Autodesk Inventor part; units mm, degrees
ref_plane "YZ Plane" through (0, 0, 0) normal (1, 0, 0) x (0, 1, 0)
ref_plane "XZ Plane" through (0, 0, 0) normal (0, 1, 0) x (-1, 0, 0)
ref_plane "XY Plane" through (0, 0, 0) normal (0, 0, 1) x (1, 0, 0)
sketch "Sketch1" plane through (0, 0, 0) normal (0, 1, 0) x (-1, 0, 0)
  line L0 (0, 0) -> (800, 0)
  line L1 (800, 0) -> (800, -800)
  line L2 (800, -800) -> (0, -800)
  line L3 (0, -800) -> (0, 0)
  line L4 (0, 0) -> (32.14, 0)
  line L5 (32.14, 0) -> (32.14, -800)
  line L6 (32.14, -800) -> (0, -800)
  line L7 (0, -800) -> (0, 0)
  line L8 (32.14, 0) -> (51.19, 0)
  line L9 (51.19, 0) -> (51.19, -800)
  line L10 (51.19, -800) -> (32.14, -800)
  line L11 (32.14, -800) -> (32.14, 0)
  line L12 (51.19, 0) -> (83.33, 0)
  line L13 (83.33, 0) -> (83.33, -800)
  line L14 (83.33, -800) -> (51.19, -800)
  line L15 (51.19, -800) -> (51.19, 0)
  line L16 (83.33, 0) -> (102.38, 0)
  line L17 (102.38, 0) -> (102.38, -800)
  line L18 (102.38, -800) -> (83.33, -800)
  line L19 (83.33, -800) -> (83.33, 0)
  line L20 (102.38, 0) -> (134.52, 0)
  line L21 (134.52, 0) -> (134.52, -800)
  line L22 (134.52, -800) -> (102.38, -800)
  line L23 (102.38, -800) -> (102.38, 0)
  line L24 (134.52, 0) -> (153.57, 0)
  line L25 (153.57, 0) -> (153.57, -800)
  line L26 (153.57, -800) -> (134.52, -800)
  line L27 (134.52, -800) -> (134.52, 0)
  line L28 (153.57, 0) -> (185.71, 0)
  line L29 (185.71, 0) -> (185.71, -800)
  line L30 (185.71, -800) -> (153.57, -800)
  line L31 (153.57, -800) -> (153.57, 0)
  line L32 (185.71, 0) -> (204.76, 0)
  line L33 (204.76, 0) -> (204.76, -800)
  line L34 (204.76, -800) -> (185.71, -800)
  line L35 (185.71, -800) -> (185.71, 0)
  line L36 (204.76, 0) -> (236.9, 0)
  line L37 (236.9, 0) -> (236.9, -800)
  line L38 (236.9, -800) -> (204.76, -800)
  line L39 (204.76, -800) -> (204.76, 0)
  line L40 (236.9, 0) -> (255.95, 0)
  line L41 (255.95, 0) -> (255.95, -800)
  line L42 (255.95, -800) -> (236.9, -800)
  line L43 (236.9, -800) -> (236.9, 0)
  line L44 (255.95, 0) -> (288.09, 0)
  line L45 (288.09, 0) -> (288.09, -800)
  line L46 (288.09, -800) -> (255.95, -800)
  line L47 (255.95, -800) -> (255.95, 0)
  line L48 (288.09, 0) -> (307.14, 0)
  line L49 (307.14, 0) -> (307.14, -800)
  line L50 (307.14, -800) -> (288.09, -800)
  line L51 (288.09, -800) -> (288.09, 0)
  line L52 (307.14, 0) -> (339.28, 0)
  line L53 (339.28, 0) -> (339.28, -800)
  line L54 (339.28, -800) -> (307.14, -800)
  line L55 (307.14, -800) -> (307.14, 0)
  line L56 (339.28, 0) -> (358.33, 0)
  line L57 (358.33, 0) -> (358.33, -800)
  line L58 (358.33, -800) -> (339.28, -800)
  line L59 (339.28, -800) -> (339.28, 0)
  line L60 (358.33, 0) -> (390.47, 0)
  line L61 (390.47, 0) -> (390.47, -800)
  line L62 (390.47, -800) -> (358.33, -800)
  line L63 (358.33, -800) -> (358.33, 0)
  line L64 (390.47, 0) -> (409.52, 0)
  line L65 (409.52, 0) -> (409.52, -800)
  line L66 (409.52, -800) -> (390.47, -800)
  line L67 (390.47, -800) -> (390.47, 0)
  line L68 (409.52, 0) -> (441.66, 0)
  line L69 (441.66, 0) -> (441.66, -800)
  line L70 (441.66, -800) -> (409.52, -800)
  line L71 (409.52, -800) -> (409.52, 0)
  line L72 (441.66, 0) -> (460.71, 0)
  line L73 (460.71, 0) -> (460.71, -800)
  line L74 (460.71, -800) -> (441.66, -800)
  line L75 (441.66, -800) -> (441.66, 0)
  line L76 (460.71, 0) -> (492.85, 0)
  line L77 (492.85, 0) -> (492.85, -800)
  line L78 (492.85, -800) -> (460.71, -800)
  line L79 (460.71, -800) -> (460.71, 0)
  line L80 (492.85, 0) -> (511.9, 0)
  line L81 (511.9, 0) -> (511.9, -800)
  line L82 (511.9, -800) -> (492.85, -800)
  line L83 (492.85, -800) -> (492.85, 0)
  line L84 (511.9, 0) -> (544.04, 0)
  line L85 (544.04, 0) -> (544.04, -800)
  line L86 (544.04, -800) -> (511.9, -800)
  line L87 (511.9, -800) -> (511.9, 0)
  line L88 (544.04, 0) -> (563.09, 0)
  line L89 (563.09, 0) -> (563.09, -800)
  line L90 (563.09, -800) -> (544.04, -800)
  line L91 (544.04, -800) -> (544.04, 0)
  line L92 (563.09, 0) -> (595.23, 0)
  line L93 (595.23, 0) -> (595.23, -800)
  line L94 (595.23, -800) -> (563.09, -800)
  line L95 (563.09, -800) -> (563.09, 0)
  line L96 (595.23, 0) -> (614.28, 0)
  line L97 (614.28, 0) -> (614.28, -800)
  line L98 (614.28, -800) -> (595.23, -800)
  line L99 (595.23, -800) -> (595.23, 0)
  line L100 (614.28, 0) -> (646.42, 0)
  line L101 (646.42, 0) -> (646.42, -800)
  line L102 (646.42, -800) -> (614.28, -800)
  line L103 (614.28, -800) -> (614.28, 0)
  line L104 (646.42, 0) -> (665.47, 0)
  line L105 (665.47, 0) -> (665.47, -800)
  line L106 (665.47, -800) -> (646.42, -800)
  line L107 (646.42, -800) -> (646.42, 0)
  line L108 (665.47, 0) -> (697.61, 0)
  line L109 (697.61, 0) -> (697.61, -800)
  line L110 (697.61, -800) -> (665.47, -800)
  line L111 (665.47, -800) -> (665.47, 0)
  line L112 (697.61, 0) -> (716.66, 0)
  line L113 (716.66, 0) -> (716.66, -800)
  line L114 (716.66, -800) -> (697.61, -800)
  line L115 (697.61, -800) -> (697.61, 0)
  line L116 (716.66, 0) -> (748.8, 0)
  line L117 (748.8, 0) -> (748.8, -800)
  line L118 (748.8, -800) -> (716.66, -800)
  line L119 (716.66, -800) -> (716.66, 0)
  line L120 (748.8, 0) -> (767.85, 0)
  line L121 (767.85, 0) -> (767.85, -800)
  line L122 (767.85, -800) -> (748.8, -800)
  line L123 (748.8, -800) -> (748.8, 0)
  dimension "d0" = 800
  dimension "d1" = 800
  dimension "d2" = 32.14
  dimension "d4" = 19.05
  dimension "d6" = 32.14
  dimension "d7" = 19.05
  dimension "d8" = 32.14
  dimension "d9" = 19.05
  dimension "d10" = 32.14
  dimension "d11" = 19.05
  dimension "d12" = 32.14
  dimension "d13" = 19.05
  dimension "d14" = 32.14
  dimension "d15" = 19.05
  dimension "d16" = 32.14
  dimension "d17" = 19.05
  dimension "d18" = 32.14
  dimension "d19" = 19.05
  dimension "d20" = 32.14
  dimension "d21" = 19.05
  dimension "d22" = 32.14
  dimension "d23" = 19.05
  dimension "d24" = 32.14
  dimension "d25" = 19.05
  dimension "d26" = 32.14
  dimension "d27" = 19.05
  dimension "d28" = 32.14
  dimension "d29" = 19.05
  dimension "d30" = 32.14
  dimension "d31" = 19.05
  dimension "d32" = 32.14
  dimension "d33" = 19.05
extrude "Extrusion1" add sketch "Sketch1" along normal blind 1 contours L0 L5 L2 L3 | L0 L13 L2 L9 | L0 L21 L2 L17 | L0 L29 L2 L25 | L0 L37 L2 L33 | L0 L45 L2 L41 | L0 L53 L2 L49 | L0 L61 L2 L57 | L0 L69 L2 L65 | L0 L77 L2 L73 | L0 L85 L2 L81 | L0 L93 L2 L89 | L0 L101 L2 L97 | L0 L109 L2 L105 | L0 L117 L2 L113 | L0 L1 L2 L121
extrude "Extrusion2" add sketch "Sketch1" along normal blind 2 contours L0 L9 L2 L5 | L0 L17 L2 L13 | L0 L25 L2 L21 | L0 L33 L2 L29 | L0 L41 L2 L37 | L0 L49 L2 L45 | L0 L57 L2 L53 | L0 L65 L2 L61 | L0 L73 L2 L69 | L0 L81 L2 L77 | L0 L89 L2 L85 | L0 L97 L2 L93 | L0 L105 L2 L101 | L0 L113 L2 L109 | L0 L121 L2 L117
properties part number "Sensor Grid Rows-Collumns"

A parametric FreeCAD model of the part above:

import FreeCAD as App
import Part
import Sketcher

doc = App.newDocument("Part")
params = doc.addObject("Spreadsheet::Sheet", "Params")
for row, (alias, value) in enumerate([
    ("sketch1_height", "800 mm"),
    ("sketch1_width", "32.14 mm"),
    ("sketch1_width2", "32.15 mm"),
    ("pad1_length", "1 mm"),
    ("sketch2_height", "800 mm"),
    ("sketch2_width", "19.05 mm"),
    ("pad2_length", "2 mm"),
], start=1):
    params.set(f"A{row}", alias)
    params.set(f"B{row}", "=" + value)
    params.setAlias(f"B{row}", alias)

body = doc.addObject("PartDesign::Body", "Body")
body.AllowCompound = True

sketch1 = body.newObject("Sketcher::SketchObject", "Sketch")
sketch1.AttachmentSupport = (doc.getObject("XZ_Plane"), [""])
sketch1.MapMode = "FlatFace"
sketch1.addGeometry([
    Part.LineSegment(App.Vector(-32, 0, 0), App.Vector(0, 0, 0)),
    Part.LineSegment(App.Vector(0, 0, 0), App.Vector(0, -800, 0)),
    Part.LineSegment(App.Vector(0, -800, 0), App.Vector(-32, -800, 0)),
    Part.LineSegment(App.Vector(-32, -800, 0), App.Vector(-32, 0, 0)),
    Part.LineSegment(App.Vector(-83, 0, 0), App.Vector(-51, 0, 0)),
    Part.LineSegment(App.Vector(-51, 0, 0), App.Vector(-51, -800, 0)),
    Part.LineSegment(App.Vector(-51, -800, 0), App.Vector(-83, -800, 0)),
    Part.LineSegment(App.Vector(-83, -800, 0), App.Vector(-83, 0, 0)),
    Part.LineSegment(App.Vector(-135, 0, 0), App.Vector(-102, 0, 0)),
    Part.LineSegment(App.Vector(-102, 0, 0), App.Vector(-102, -800, 0)),
    Part.LineSegment(App.Vector(-102, -800, 0), App.Vector(-135, -800, 0)),
    Part.LineSegment(App.Vector(-135, -800, 0), App.Vector(-135, 0, 0)),
    Part.LineSegment(App.Vector(-186, 0, 0), App.Vector(-154, 0, 0)),
    Part.LineSegment(App.Vector(-154, 0, 0), App.Vector(-154, -800, 0)),
    Part.LineSegment(App.Vector(-154, -800, 0), App.Vector(-186, -800, 0)),
    Part.LineSegment(App.Vector(-186, -800, 0), App.Vector(-186, 0, 0)),
    Part.LineSegment(App.Vector(-237, 0, 0), App.Vector(-205, 0, 0)),
    Part.LineSegment(App.Vector(-205, 0, 0), App.Vector(-205, -800, 0)),
    Part.LineSegment(App.Vector(-205, -800, 0), App.Vector(-237, -800, 0)),
    Part.LineSegment(App.Vector(-237, -800, 0), App.Vector(-237, 0, 0)),
    Part.LineSegment(App.Vector(-288, 0, 0), App.Vector(-256, 0, 0)),
    Part.LineSegment(App.Vector(-256, 0, 0), App.Vector(-256, -800, 0)),
    Part.LineSegment(App.Vector(-256, -800, 0), App.Vector(-288, -800, 0)),
    Part.LineSegment(App.Vector(-288, -800, 0), App.Vector(-288, 0, 0)),
    Part.LineSegment(App.Vector(-339, 0, 0), App.Vector(-307, 0, 0)),
    Part.LineSegment(App.Vector(-307, 0, 0), App.Vector(-307, -800, 0)),
    Part.LineSegment(App.Vector(-307, -800, 0), App.Vector(-339, -800, 0)),
    Part.LineSegment(App.Vector(-339, -800, 0), App.Vector(-339, 0, 0)),
    Part.LineSegment(App.Vector(-390, 0, 0), App.Vector(-358, 0, 0)),
    Part.LineSegment(App.Vector(-358, 0, 0), App.Vector(-358, -800, 0)),
    Part.LineSegment(App.Vector(-358, -800, 0), App.Vector(-390, -800, 0)),
    Part.LineSegment(App.Vector(-390, -800, 0), App.Vector(-390, 0, 0)),
    Part.LineSegment(App.Vector(-442, 0, 0), App.Vector(-410, 0, 0)),
    Part.LineSegment(App.Vector(-410, 0, 0), App.Vector(-410, -800, 0)),
    Part.LineSegment(App.Vector(-410, -800, 0), App.Vector(-442, -800, 0)),
    Part.LineSegment(App.Vector(-442, -800, 0), App.Vector(-442, 0, 0)),
    Part.LineSegment(App.Vector(-493, 0, 0), App.Vector(-461, 0, 0)),
    Part.LineSegment(App.Vector(-461, 0, 0), App.Vector(-461, -800, 0)),
    Part.LineSegment(App.Vector(-461, -800, 0), App.Vector(-493, -800, 0)),
    Part.LineSegment(App.Vector(-493, -800, 0), App.Vector(-493, 0, 0)),
    Part.LineSegment(App.Vector(-544, 0, 0), App.Vector(-512, 0, 0)),
    Part.LineSegment(App.Vector(-512, 0, 0), App.Vector(-512, -800, 0)),
    Part.LineSegment(App.Vector(-512, -800, 0), App.Vector(-544, -800, 0)),
    Part.LineSegment(App.Vector(-544, -800, 0), App.Vector(-544, 0, 0)),
    Part.LineSegment(App.Vector(-595, 0, 0), App.Vector(-563, 0, 0)),
    Part.LineSegment(App.Vector(-563, 0, 0), App.Vector(-563, -800, 0)),
    Part.LineSegment(App.Vector(-563, -800, 0), App.Vector(-595, -800, 0)),
    Part.LineSegment(App.Vector(-595, -800, 0), App.Vector(-595, 0, 0)),
    Part.LineSegment(App.Vector(-646, 0, 0), App.Vector(-614, 0, 0)),
    Part.LineSegment(App.Vector(-614, 0, 0), App.Vector(-614, -800, 0)),
    Part.LineSegment(App.Vector(-614, -800, 0), App.Vector(-646, -800, 0)),
    Part.LineSegment(App.Vector(-646, -800, 0), App.Vector(-646, 0, 0)),
    Part.LineSegment(App.Vector(-698, 0, 0), App.Vector(-665, 0, 0)),
    Part.LineSegment(App.Vector(-665, 0, 0), App.Vector(-665, -800, 0)),
    Part.LineSegment(App.Vector(-665, -800, 0), App.Vector(-698, -800, 0)),
    Part.LineSegment(App.Vector(-698, -800, 0), App.Vector(-698, 0, 0)),
    Part.LineSegment(App.Vector(-749, 0, 0), App.Vector(-717, 0, 0)),
    Part.LineSegment(App.Vector(-717, 0, 0), App.Vector(-717, -800, 0)),
    Part.LineSegment(App.Vector(-717, -800, 0), App.Vector(-749, -800, 0)),
    Part.LineSegment(App.Vector(-749, -800, 0), App.Vector(-749, 0, 0)),
    Part.LineSegment(App.Vector(-800, 0, 0), App.Vector(-768, 0, 0)),
    Part.LineSegment(App.Vector(-768, 0, 0), App.Vector(-768, -800, 0)),
    Part.LineSegment(App.Vector(-768, -800, 0), App.Vector(-800, -800, 0)),
    Part.LineSegment(App.Vector(-800, -800, 0), App.Vector(-800, 0, 0)),
], False)
sketch1.addConstraint([
    Sketcher.Constraint("Coincident", 0, 2, 1, 1),
    Sketcher.Constraint("Coincident", 1, 2, 2, 1),
    Sketcher.Constraint("Coincident", 2, 2, 3, 1),
    Sketcher.Constraint("Coincident", 3, 2, 0, 1),
    Sketcher.Constraint("Coincident", 4, 2, 5, 1),
    Sketcher.Constraint("Coincident", 5, 2, 6, 1),
    Sketcher.Constraint("Coincident", 6, 2, 7, 1),
    Sketcher.Constraint("Coincident", 7, 2, 4, 1),
    Sketcher.Constraint("Coincident", 8, 2, 9, 1),
    Sketcher.Constraint("Coincident", 9, 2, 10, 1),
    Sketcher.Constraint("Coincident", 10, 2, 11, 1),
    Sketcher.Constraint("Coincident", 11, 2, 8, 1),
    Sketcher.Constraint("Coincident", 12, 2, 13, 1),
    Sketcher.Constraint("Coincident", 13, 2, 14, 1),
    Sketcher.Constraint("Coincident", 14, 2, 15, 1),
    Sketcher.Constraint("Coincident", 15, 2, 12, 1),
    Sketcher.Constraint("Coincident", 16, 2, 17, 1),
    Sketcher.Constraint("Coincident", 17, 2, 18, 1),
    Sketcher.Constraint("Coincident", 18, 2, 19, 1),
    Sketcher.Constraint("Coincident", 19, 2, 16, 1),
    Sketcher.Constraint("Coincident", 20, 2, 21, 1),
    Sketcher.Constraint("Coincident", 21, 2, 22, 1),
    Sketcher.Constraint("Coincident", 22, 2, 23, 1),
    Sketcher.Constraint("Coincident", 23, 2, 20, 1),
    Sketcher.Constraint("Coincident", 24, 2, 25, 1),
    Sketcher.Constraint("Coincident", 25, 2, 26, 1),
    Sketcher.Constraint("Coincident", 26, 2, 27, 1),
    Sketcher.Constraint("Coincident", 27, 2, 24, 1),
    Sketcher.Constraint("Coincident", 28, 2, 29, 1),
    Sketcher.Constraint("Coincident", 29, 2, 30, 1),
    Sketcher.Constraint("Coincident", 30, 2, 31, 1),
    Sketcher.Constraint("Coincident", 31, 2, 28, 1),
    Sketcher.Constraint("Coincident", 32, 2, 33, 1),
    Sketcher.Constraint("Coincident", 33, 2, 34, 1),
    Sketcher.Constraint("Coincident", 34, 2, 35, 1),
    Sketcher.Constraint("Coincident", 35, 2, 32, 1),
    Sketcher.Constraint("Coincident", 36, 2, 37, 1),
    Sketcher.Constraint("Coincident", 37, 2, 38, 1),
    Sketcher.Constraint("Coincident", 38, 2, 39, 1),
    Sketcher.Constraint("Coincident", 39, 2, 36, 1),
    Sketcher.Constraint("Coincident", 40, 2, 41, 1),
    Sketcher.Constraint("Coincident", 41, 2, 42, 1),
    Sketcher.Constraint("Coincident", 42, 2, 43, 1),
    Sketcher.Constraint("Coincident", 43, 2, 40, 1),
    Sketcher.Constraint("Coincident", 44, 2, 45, 1),
    Sketcher.Constraint("Coincident", 45, 2, 46, 1),
    Sketcher.Constraint("Coincident", 46, 2, 47, 1),
    Sketcher.Constraint("Coincident", 47, 2, 44, 1),
    Sketcher.Constraint("Coincident", 48, 2, 49, 1),
    Sketcher.Constraint("Coincident", 49, 2, 50, 1),
    Sketcher.Constraint("Coincident", 50, 2, 51, 1),
    Sketcher.Constraint("Coincident", 51, 2, 48, 1),
    Sketcher.Constraint("Coincident", 52, 2, 53, 1),
    Sketcher.Constraint("Coincident", 53, 2, 54, 1),
    Sketcher.Constraint("Coincident", 54, 2, 55, 1),
    Sketcher.Constraint("Coincident", 55, 2, 52, 1),
    Sketcher.Constraint("Coincident", 56, 2, 57, 1),
    Sketcher.Constraint("Coincident", 57, 2, 58, 1),
    Sketcher.Constraint("Coincident", 58, 2, 59, 1),
    Sketcher.Constraint("Coincident", 59, 2, 56, 1),
    Sketcher.Constraint("Coincident", 60, 2, 61, 1),
    Sketcher.Constraint("Coincident", 61, 2, 62, 1),
    Sketcher.Constraint("Coincident", 62, 2, 63, 1),
    Sketcher.Constraint("Coincident", 63, 2, 60, 1),
    Sketcher.Constraint("Horizontal", 0),
    Sketcher.Constraint("Vertical", 1),
    Sketcher.Constraint("Horizontal", 2),
    Sketcher.Constraint("Vertical", 3),
    Sketcher.Constraint("Horizontal", 4),
    Sketcher.Constraint("Vertical", 5),
    Sketcher.Constraint("Horizontal", 6),
    Sketcher.Constraint("Vertical", 7),
    Sketcher.Constraint("Horizontal", 8),
    Sketcher.Constraint("Vertical", 9),
    Sketcher.Constraint("Horizontal", 10),
    Sketcher.Constraint("Vertical", 11),
    Sketcher.Constraint("Horizontal", 12),
    Sketcher.Constraint("Vertical", 13),
    Sketcher.Constraint("Horizontal", 14),
    Sketcher.Constraint("Vertical", 15),
    Sketcher.Constraint("Horizontal", 16),
    Sketcher.Constraint("Vertical", 17),
    Sketcher.Constraint("Horizontal", 18),
    Sketcher.Constraint("Vertical", 19),
    Sketcher.Constraint("Horizontal", 20),
    Sketcher.Constraint("Vertical", 21),
    Sketcher.Constraint("Horizontal", 22),
    Sketcher.Constraint("Vertical", 23),
    Sketcher.Constraint("Horizontal", 24),
    Sketcher.Constraint("Vertical", 25),
    Sketcher.Constraint("Horizontal", 26),
    Sketcher.Constraint("Vertical", 27),
    Sketcher.Constraint("Horizontal", 28),
    Sketcher.Constraint("Vertical", 29),
    Sketcher.Constraint("Horizontal", 30),
    Sketcher.Constraint("Vertical", 31),
    Sketcher.Constraint("Horizontal", 32),
    Sketcher.Constraint("Vertical", 33),
    Sketcher.Constraint("Horizontal", 34),
    Sketcher.Constraint("Vertical", 35),
    Sketcher.Constraint("Horizontal", 36),
    Sketcher.Constraint("Vertical", 37),
    Sketcher.Constraint("Horizontal", 38),
    Sketcher.Constraint("Vertical", 39),
    Sketcher.Constraint("Horizontal", 40),
    Sketcher.Constraint("Vertical", 41),
    Sketcher.Constraint("Horizontal", 42),
    Sketcher.Constraint("Vertical", 43),
    Sketcher.Constraint("Horizontal", 44),
    Sketcher.Constraint("Vertical", 45),
    Sketcher.Constraint("Horizontal", 46),
    Sketcher.Constraint("Vertical", 47),
    Sketcher.Constraint("Horizontal", 48),
    Sketcher.Constraint("Vertical", 49),
    Sketcher.Constraint("Horizontal", 50),
    Sketcher.Constraint("Vertical", 51),
    Sketcher.Constraint("Horizontal", 52),
    Sketcher.Constraint("Vertical", 53),
    Sketcher.Constraint("Horizontal", 54),
    Sketcher.Constraint("Vertical", 55),
    Sketcher.Constraint("Horizontal", 56),
    Sketcher.Constraint("Vertical", 57),
    Sketcher.Constraint("Horizontal", 58),
    Sketcher.Constraint("Vertical", 59),
    Sketcher.Constraint("Horizontal", 60),
    Sketcher.Constraint("Vertical", 61),
    Sketcher.Constraint("Horizontal", 62),
    Sketcher.Constraint("Vertical", 63),
    Sketcher.Constraint("Coincident", 0, 2, -1, 1),
    Sketcher.Constraint("PointOnObject", 4, 2, -1),
    Sketcher.Constraint("PointOnObject", 8, 2, -1),
    Sketcher.Constraint("PointOnObject", 12, 2, -1),
    Sketcher.Constraint("PointOnObject", 16, 2, -1),
    Sketcher.Constraint("PointOnObject", 20, 2, -1),
    Sketcher.Constraint("PointOnObject", 24, 2, -1),
    Sketcher.Constraint("PointOnObject", 28, 2, -1),
    Sketcher.Constraint("PointOnObject", 32, 2, -1),
    Sketcher.Constraint("PointOnObject", 36, 2, -1),
    Sketcher.Constraint("PointOnObject", 40, 2, -1),
    Sketcher.Constraint("PointOnObject", 44, 2, -1),
    Sketcher.Constraint("PointOnObject", 48, 2, -1),
    Sketcher.Constraint("PointOnObject", 52, 2, -1),
    Sketcher.Constraint("PointOnObject", 56, 2, -1),
    Sketcher.Constraint("PointOnObject", 60, 2, -1),
    Sketcher.Constraint("Horizontal", 2, 2, 5, 2),
    Sketcher.Constraint("Horizontal", 6, 2, 9, 2),
    Sketcher.Constraint("Horizontal", 10, 2, 13, 2),
    Sketcher.Constraint("Horizontal", 14, 2, 17, 2),
    Sketcher.Constraint("Horizontal", 18, 2, 21, 2),
    Sketcher.Constraint("Horizontal", 22, 2, 25, 2),
    Sketcher.Constraint("Horizontal", 26, 2, 29, 2),
    Sketcher.Constraint("Horizontal", 30, 2, 33, 2),
    Sketcher.Constraint("Horizontal", 34, 2, 37, 2),
    Sketcher.Constraint("Horizontal", 38, 2, 41, 2),
    Sketcher.Constraint("Horizontal", 42, 2, 45, 2),
    Sketcher.Constraint("Horizontal", 46, 2, 49, 2),
    Sketcher.Constraint("Horizontal", 50, 2, 53, 2),
    Sketcher.Constraint("Horizontal", 54, 2, 57, 2),
    Sketcher.Constraint("Horizontal", 58, 2, 61, 2),
    Sketcher.Constraint("Equal", 2, 4),
    Sketcher.Constraint("Equal", 6, 8),
    Sketcher.Constraint("Equal", 10, 12),
    Sketcher.Constraint("Equal", 14, 16),
    Sketcher.Constraint("Equal", 18, 20),
    Sketcher.Constraint("Equal", 22, 24),
    Sketcher.Constraint("Equal", 26, 28),
    Sketcher.Constraint("Equal", 30, 32),
    Sketcher.Constraint("Equal", 34, 36),
    Sketcher.Constraint("Equal", 38, 40),
    Sketcher.Constraint("Equal", 42, 44),
    Sketcher.Constraint("Equal", 46, 48),
    Sketcher.Constraint("Equal", 50, 52),
    Sketcher.Constraint("Equal", 54, 56),
    Sketcher.Constraint("DistanceY", 1, 2, 1, 1, 800.0),
    Sketcher.Constraint("DistanceX", 62, 2, -1, 1, 800.0),
    Sketcher.Constraint("DistanceX", 0, 1, 0, 2, 32.14),
    Sketcher.Constraint("DistanceX", 60, 1, 60, 2, 32.15),
    Sketcher.Constraint("DistanceX", 18, 2, -1, 1, 236.9),
    Sketcher.Constraint("DistanceX", 40, 2, -1, 1, 511.9),
    Sketcher.Constraint("DistanceX", 58, 2, -1, 1, 748.8),
    Sketcher.Constraint("DistanceX", 4, 2, -1, 1, 51.19),
    Sketcher.Constraint("DistanceX", 8, 2, -1, 1, 102.38),
    Sketcher.Constraint("DistanceX", 12, 2, -1, 1, 153.57),
    Sketcher.Constraint("DistanceX", 20, 2, -1, 1, 255.95),
    Sketcher.Constraint("DistanceX", 24, 2, -1, 1, 307.14),
    Sketcher.Constraint("DistanceX", 28, 2, -1, 1, 358.33),
    Sketcher.Constraint("DistanceX", 32, 2, -1, 1, 409.52),
    Sketcher.Constraint("DistanceX", 36, 2, -1, 1, 460.71),
    Sketcher.Constraint("DistanceX", 44, 2, -1, 1, 563.09),
    Sketcher.Constraint("DistanceX", 48, 2, -1, 1, 614.28),
    Sketcher.Constraint("DistanceX", 52, 2, -1, 1, 665.47),
])
sketch1.setExpression("Constraints[173]", "Params.sketch1_height")
sketch1.setExpression("Constraints[175]", "Params.sketch1_width")
sketch1.setExpression("Constraints[176]", "Params.sketch1_width2")
pad1 = body.newObject("PartDesign::Pad", "Pad")
pad1.Profile = sketch1
pad1.setExpression("Length", "Params.pad1_length")
pad1.Reversed = True

sketch2 = body.newObject("Sketcher::SketchObject", "Sketch001")
sketch2.AttachmentSupport = (doc.getObject("XZ_Plane"), [""])
sketch2.MapMode = "FlatFace"
sketch2.addGeometry([
    Part.LineSegment(App.Vector(-51, 0, 0), App.Vector(-32, 0, 0)),
    Part.LineSegment(App.Vector(-32, 0, 0), App.Vector(-32, -800, 0)),
    Part.LineSegment(App.Vector(-32, -800, 0), App.Vector(-51, -800, 0)),
    Part.LineSegment(App.Vector(-51, -800, 0), App.Vector(-51, 0, 0)),
    Part.LineSegment(App.Vector(-102, 0, 0), App.Vector(-83, 0, 0)),
    Part.LineSegment(App.Vector(-83, 0, 0), App.Vector(-83, -800, 0)),
    Part.LineSegment(App.Vector(-83, -800, 0), App.Vector(-102, -800, 0)),
    Part.LineSegment(App.Vector(-102, -800, 0), App.Vector(-102, 0, 0)),
    Part.LineSegment(App.Vector(-154, 0, 0), App.Vector(-135, 0, 0)),
    Part.LineSegment(App.Vector(-135, 0, 0), App.Vector(-135, -800, 0)),
    Part.LineSegment(App.Vector(-135, -800, 0), App.Vector(-154, -800, 0)),
    Part.LineSegment(App.Vector(-154, -800, 0), App.Vector(-154, 0, 0)),
    Part.LineSegment(App.Vector(-205, 0, 0), App.Vector(-186, 0, 0)),
    Part.LineSegment(App.Vector(-186, 0, 0), App.Vector(-186, -800, 0)),
    Part.LineSegment(App.Vector(-186, -800, 0), App.Vector(-205, -800, 0)),
    Part.LineSegment(App.Vector(-205, -800, 0), App.Vector(-205, 0, 0)),
    Part.LineSegment(App.Vector(-256, 0, 0), App.Vector(-237, 0, 0)),
    Part.LineSegment(App.Vector(-237, 0, 0), App.Vector(-237, -800, 0)),
    Part.LineSegment(App.Vector(-237, -800, 0), App.Vector(-256, -800, 0)),
    Part.LineSegment(App.Vector(-256, -800, 0), App.Vector(-256, 0, 0)),
    Part.LineSegment(App.Vector(-307, 0, 0), App.Vector(-288, 0, 0)),
    Part.LineSegment(App.Vector(-288, 0, 0), App.Vector(-288, -800, 0)),
    Part.LineSegment(App.Vector(-288, -800, 0), App.Vector(-307, -800, 0)),
    Part.LineSegment(App.Vector(-307, -800, 0), App.Vector(-307, 0, 0)),
    Part.LineSegment(App.Vector(-358, 0, 0), App.Vector(-339, 0, 0)),
    Part.LineSegment(App.Vector(-339, 0, 0), App.Vector(-339, -800, 0)),
    Part.LineSegment(App.Vector(-339, -800, 0), App.Vector(-358, -800, 0)),
    Part.LineSegment(App.Vector(-358, -800, 0), App.Vector(-358, 0, 0)),
    Part.LineSegment(App.Vector(-410, 0, 0), App.Vector(-390, 0, 0)),
    Part.LineSegment(App.Vector(-390, 0, 0), App.Vector(-390, -800, 0)),
    Part.LineSegment(App.Vector(-390, -800, 0), App.Vector(-410, -800, 0)),
    Part.LineSegment(App.Vector(-410, -800, 0), App.Vector(-410, 0, 0)),
    Part.LineSegment(App.Vector(-461, 0, 0), App.Vector(-442, 0, 0)),
    Part.LineSegment(App.Vector(-442, 0, 0), App.Vector(-442, -800, 0)),
    Part.LineSegment(App.Vector(-442, -800, 0), App.Vector(-461, -800, 0)),
    Part.LineSegment(App.Vector(-461, -800, 0), App.Vector(-461, 0, 0)),
    Part.LineSegment(App.Vector(-512, 0, 0), App.Vector(-493, 0, 0)),
    Part.LineSegment(App.Vector(-493, 0, 0), App.Vector(-493, -800, 0)),
    Part.LineSegment(App.Vector(-493, -800, 0), App.Vector(-512, -800, 0)),
    Part.LineSegment(App.Vector(-512, -800, 0), App.Vector(-512, 0, 0)),
    Part.LineSegment(App.Vector(-563, 0, 0), App.Vector(-544, 0, 0)),
    Part.LineSegment(App.Vector(-544, 0, 0), App.Vector(-544, -800, 0)),
    Part.LineSegment(App.Vector(-544, -800, 0), App.Vector(-563, -800, 0)),
    Part.LineSegment(App.Vector(-563, -800, 0), App.Vector(-563, 0, 0)),
    Part.LineSegment(App.Vector(-614, 0, 0), App.Vector(-595, 0, 0)),
    Part.LineSegment(App.Vector(-595, 0, 0), App.Vector(-595, -800, 0)),
    Part.LineSegment(App.Vector(-595, -800, 0), App.Vector(-614, -800, 0)),
    Part.LineSegment(App.Vector(-614, -800, 0), App.Vector(-614, 0, 0)),
    Part.LineSegment(App.Vector(-665, 0, 0), App.Vector(-646, 0, 0)),
    Part.LineSegment(App.Vector(-646, 0, 0), App.Vector(-646, -800, 0)),
    Part.LineSegment(App.Vector(-646, -800, 0), App.Vector(-665, -800, 0)),
    Part.LineSegment(App.Vector(-665, -800, 0), App.Vector(-665, 0, 0)),
    Part.LineSegment(App.Vector(-717, 0, 0), App.Vector(-698, 0, 0)),
    Part.LineSegment(App.Vector(-698, 0, 0), App.Vector(-698, -800, 0)),
    Part.LineSegment(App.Vector(-698, -800, 0), App.Vector(-717, -800, 0)),
    Part.LineSegment(App.Vector(-717, -800, 0), App.Vector(-717, 0, 0)),
    Part.LineSegment(App.Vector(-768, 0, 0), App.Vector(-749, 0, 0)),
    Part.LineSegment(App.Vector(-749, 0, 0), App.Vector(-749, -800, 0)),
    Part.LineSegment(App.Vector(-749, -800, 0), App.Vector(-768, -800, 0)),
    Part.LineSegment(App.Vector(-768, -800, 0), App.Vector(-768, 0, 0)),
], False)
sketch2.addConstraint([
    Sketcher.Constraint("Coincident", 0, 2, 1, 1),
    Sketcher.Constraint("Coincident", 1, 2, 2, 1),
    Sketcher.Constraint("Coincident", 2, 2, 3, 1),
    Sketcher.Constraint("Coincident", 3, 2, 0, 1),
    Sketcher.Constraint("Coincident", 4, 2, 5, 1),
    Sketcher.Constraint("Coincident", 5, 2, 6, 1),
    Sketcher.Constraint("Coincident", 6, 2, 7, 1),
    Sketcher.Constraint("Coincident", 7, 2, 4, 1),
    Sketcher.Constraint("Coincident", 8, 2, 9, 1),
    Sketcher.Constraint("Coincident", 9, 2, 10, 1),
    Sketcher.Constraint("Coincident", 10, 2, 11, 1),
    Sketcher.Constraint("Coincident", 11, 2, 8, 1),
    Sketcher.Constraint("Coincident", 12, 2, 13, 1),
    Sketcher.Constraint("Coincident", 13, 2, 14, 1),
    Sketcher.Constraint("Coincident", 14, 2, 15, 1),
    Sketcher.Constraint("Coincident", 15, 2, 12, 1),
    Sketcher.Constraint("Coincident", 16, 2, 17, 1),
    Sketcher.Constraint("Coincident", 17, 2, 18, 1),
    Sketcher.Constraint("Coincident", 18, 2, 19, 1),
    Sketcher.Constraint("Coincident", 19, 2, 16, 1),
    Sketcher.Constraint("Coincident", 20, 2, 21, 1),
    Sketcher.Constraint("Coincident", 21, 2, 22, 1),
    Sketcher.Constraint("Coincident", 22, 2, 23, 1),
    Sketcher.Constraint("Coincident", 23, 2, 20, 1),
    Sketcher.Constraint("Coincident", 24, 2, 25, 1),
    Sketcher.Constraint("Coincident", 25, 2, 26, 1),
    Sketcher.Constraint("Coincident", 26, 2, 27, 1),
    Sketcher.Constraint("Coincident", 27, 2, 24, 1),
    Sketcher.Constraint("Coincident", 28, 2, 29, 1),
    Sketcher.Constraint("Coincident", 29, 2, 30, 1),
    Sketcher.Constraint("Coincident", 30, 2, 31, 1),
    Sketcher.Constraint("Coincident", 31, 2, 28, 1),
    Sketcher.Constraint("Coincident", 32, 2, 33, 1),
    Sketcher.Constraint("Coincident", 33, 2, 34, 1),
    Sketcher.Constraint("Coincident", 34, 2, 35, 1),
    Sketcher.Constraint("Coincident", 35, 2, 32, 1),
    Sketcher.Constraint("Coincident", 36, 2, 37, 1),
    Sketcher.Constraint("Coincident", 37, 2, 38, 1),
    Sketcher.Constraint("Coincident", 38, 2, 39, 1),
    Sketcher.Constraint("Coincident", 39, 2, 36, 1),
    Sketcher.Constraint("Coincident", 40, 2, 41, 1),
    Sketcher.Constraint("Coincident", 41, 2, 42, 1),
    Sketcher.Constraint("Coincident", 42, 2, 43, 1),
    Sketcher.Constraint("Coincident", 43, 2, 40, 1),
    Sketcher.Constraint("Coincident", 44, 2, 45, 1),
    Sketcher.Constraint("Coincident", 45, 2, 46, 1),
    Sketcher.Constraint("Coincident", 46, 2, 47, 1),
    Sketcher.Constraint("Coincident", 47, 2, 44, 1),
    Sketcher.Constraint("Coincident", 48, 2, 49, 1),
    Sketcher.Constraint("Coincident", 49, 2, 50, 1),
    Sketcher.Constraint("Coincident", 50, 2, 51, 1),
    Sketcher.Constraint("Coincident", 51, 2, 48, 1),
    Sketcher.Constraint("Coincident", 52, 2, 53, 1),
    Sketcher.Constraint("Coincident", 53, 2, 54, 1),
    Sketcher.Constraint("Coincident", 54, 2, 55, 1),
    Sketcher.Constraint("Coincident", 55, 2, 52, 1),
    Sketcher.Constraint("Coincident", 56, 2, 57, 1),
    Sketcher.Constraint("Coincident", 57, 2, 58, 1),
    Sketcher.Constraint("Coincident", 58, 2, 59, 1),
    Sketcher.Constraint("Coincident", 59, 2, 56, 1),
    Sketcher.Constraint("Horizontal", 0),
    Sketcher.Constraint("Vertical", 1),
    Sketcher.Constraint("Horizontal", 2),
    Sketcher.Constraint("Vertical", 3),
    Sketcher.Constraint("Horizontal", 4),
    Sketcher.Constraint("Vertical", 5),
    Sketcher.Constraint("Horizontal", 6),
    Sketcher.Constraint("Vertical", 7),
    Sketcher.Constraint("Horizontal", 8),
    Sketcher.Constraint("Vertical", 9),
    Sketcher.Constraint("Horizontal", 10),
    Sketcher.Constraint("Vertical", 11),
    Sketcher.Constraint("Horizontal", 12),
    Sketcher.Constraint("Vertical", 13),
    Sketcher.Constraint("Horizontal", 14),
    Sketcher.Constraint("Vertical", 15),
    Sketcher.Constraint("Horizontal", 16),
    Sketcher.Constraint("Vertical", 17),
    Sketcher.Constraint("Horizontal", 18),
    Sketcher.Constraint("Vertical", 19),
    Sketcher.Constraint("Horizontal", 20),
    Sketcher.Constraint("Vertical", 21),
    Sketcher.Constraint("Horizontal", 22),
    Sketcher.Constraint("Vertical", 23),
    Sketcher.Constraint("Horizontal", 24),
    Sketcher.Constraint("Vertical", 25),
    Sketcher.Constraint("Horizontal", 26),
    Sketcher.Constraint("Vertical", 27),
    Sketcher.Constraint("Horizontal", 28),
    Sketcher.Constraint("Vertical", 29),
    Sketcher.Constraint("Horizontal", 30),
    Sketcher.Constraint("Vertical", 31),
    Sketcher.Constraint("Horizontal", 32),
    Sketcher.Constraint("Vertical", 33),
    Sketcher.Constraint("Horizontal", 34),
    Sketcher.Constraint("Vertical", 35),
    Sketcher.Constraint("Horizontal", 36),
    Sketcher.Constraint("Vertical", 37),
    Sketcher.Constraint("Horizontal", 38),
    Sketcher.Constraint("Vertical", 39),
    Sketcher.Constraint("Horizontal", 40),
    Sketcher.Constraint("Vertical", 41),
    Sketcher.Constraint("Horizontal", 42),
    Sketcher.Constraint("Vertical", 43),
    Sketcher.Constraint("Horizontal", 44),
    Sketcher.Constraint("Vertical", 45),
    Sketcher.Constraint("Horizontal", 46),
    Sketcher.Constraint("Vertical", 47),
    Sketcher.Constraint("Horizontal", 48),
    Sketcher.Constraint("Vertical", 49),
    Sketcher.Constraint("Horizontal", 50),
    Sketcher.Constraint("Vertical", 51),
    Sketcher.Constraint("Horizontal", 52),
    Sketcher.Constraint("Vertical", 53),
    Sketcher.Constraint("Horizontal", 54),
    Sketcher.Constraint("Vertical", 55),
    Sketcher.Constraint("Horizontal", 56),
    Sketcher.Constraint("Vertical", 57),
    Sketcher.Constraint("Horizontal", 58),
    Sketcher.Constraint("Vertical", 59),
    Sketcher.Constraint("PointOnObject", 0, 2, -1),
    Sketcher.Constraint("PointOnObject", 4, 2, -1),
    Sketcher.Constraint("PointOnObject", 8, 2, -1),
    Sketcher.Constraint("PointOnObject", 12, 2, -1),
    Sketcher.Constraint("PointOnObject", 16, 2, -1),
    Sketcher.Constraint("PointOnObject", 20, 2, -1),
    Sketcher.Constraint("PointOnObject", 24, 2, -1),
    Sketcher.Constraint("PointOnObject", 28, 2, -1),
    Sketcher.Constraint("PointOnObject", 32, 2, -1),
    Sketcher.Constraint("PointOnObject", 36, 2, -1),
    Sketcher.Constraint("PointOnObject", 40, 2, -1),
    Sketcher.Constraint("PointOnObject", 44, 2, -1),
    Sketcher.Constraint("PointOnObject", 48, 2, -1),
    Sketcher.Constraint("PointOnObject", 52, 2, -1),
    Sketcher.Constraint("PointOnObject", 56, 2, -1),
    Sketcher.Constraint("Horizontal", 2, 2, 5, 2),
    Sketcher.Constraint("Horizontal", 6, 2, 9, 2),
    Sketcher.Constraint("Horizontal", 10, 2, 13, 2),
    Sketcher.Constraint("Horizontal", 14, 2, 17, 2),
    Sketcher.Constraint("Horizontal", 18, 2, 21, 2),
    Sketcher.Constraint("Horizontal", 22, 2, 25, 2),
    Sketcher.Constraint("Horizontal", 26, 2, 29, 2),
    Sketcher.Constraint("Horizontal", 30, 2, 33, 2),
    Sketcher.Constraint("Horizontal", 34, 2, 37, 2),
    Sketcher.Constraint("Horizontal", 38, 2, 41, 2),
    Sketcher.Constraint("Horizontal", 42, 2, 45, 2),
    Sketcher.Constraint("Horizontal", 46, 2, 49, 2),
    Sketcher.Constraint("Horizontal", 50, 2, 53, 2),
    Sketcher.Constraint("Horizontal", 54, 2, 57, 2),
    Sketcher.Constraint("Equal", 2, 4),
    Sketcher.Constraint("Equal", 6, 8),
    Sketcher.Constraint("Equal", 10, 12),
    Sketcher.Constraint("Equal", 14, 16),
    Sketcher.Constraint("Equal", 18, 20),
    Sketcher.Constraint("Equal", 22, 24),
    Sketcher.Constraint("Equal", 26, 28),
    Sketcher.Constraint("Equal", 30, 32),
    Sketcher.Constraint("Equal", 34, 36),
    Sketcher.Constraint("Equal", 38, 40),
    Sketcher.Constraint("Equal", 42, 44),
    Sketcher.Constraint("Equal", 46, 48),
    Sketcher.Constraint("Equal", 50, 52),
    Sketcher.Constraint("Equal", 54, 56),
    Sketcher.Constraint("DistanceY", 1, 2, 1, 1, 800.0),
    Sketcher.Constraint("DistanceX", 0, 1, 0, 2, 19.05),
    Sketcher.Constraint("DistanceX", 0, 2, -1, 1, 32.14),
    Sketcher.Constraint("DistanceX", 4, 2, 3, 2, 32.14),
    Sketcher.Constraint("DistanceX", 8, 2, 7, 2, 32.14),
    Sketcher.Constraint("DistanceX", 12, 2, 11, 2, 32.14),
    Sketcher.Constraint("DistanceX", 16, 2, 15, 2, 32.14),
    Sketcher.Constraint("DistanceX", 20, 2, 19, 2, 32.14),
    Sketcher.Constraint("DistanceX", 24, 2, 23, 2, 32.14),
    Sketcher.Constraint("DistanceX", 28, 2, 27, 2, 32.14),
    Sketcher.Constraint("DistanceX", 32, 2, 31, 2, 32.14),
    Sketcher.Constraint("DistanceX", 36, 2, 35, 2, 32.14),
    Sketcher.Constraint("DistanceX", 40, 2, 39, 2, 32.14),
    Sketcher.Constraint("DistanceX", 44, 2, 43, 2, 32.14),
    Sketcher.Constraint("DistanceX", 48, 2, 47, 2, 32.14),
    Sketcher.Constraint("DistanceX", 52, 2, 51, 2, 32.14),
    Sketcher.Constraint("DistanceX", 56, 2, 55, 2, 32.14),
])
sketch2.setExpression("Constraints[163]", "Params.sketch2_height")
sketch2.setExpression("Constraints[164]", "Params.sketch2_width")
pad2 = body.newObject("PartDesign::Pad", "Pad001")
pad2.Profile = sketch2
pad2.setExpression("Length", "Params.pad2_length")
pad2.Reversed = True

doc.recompute()
